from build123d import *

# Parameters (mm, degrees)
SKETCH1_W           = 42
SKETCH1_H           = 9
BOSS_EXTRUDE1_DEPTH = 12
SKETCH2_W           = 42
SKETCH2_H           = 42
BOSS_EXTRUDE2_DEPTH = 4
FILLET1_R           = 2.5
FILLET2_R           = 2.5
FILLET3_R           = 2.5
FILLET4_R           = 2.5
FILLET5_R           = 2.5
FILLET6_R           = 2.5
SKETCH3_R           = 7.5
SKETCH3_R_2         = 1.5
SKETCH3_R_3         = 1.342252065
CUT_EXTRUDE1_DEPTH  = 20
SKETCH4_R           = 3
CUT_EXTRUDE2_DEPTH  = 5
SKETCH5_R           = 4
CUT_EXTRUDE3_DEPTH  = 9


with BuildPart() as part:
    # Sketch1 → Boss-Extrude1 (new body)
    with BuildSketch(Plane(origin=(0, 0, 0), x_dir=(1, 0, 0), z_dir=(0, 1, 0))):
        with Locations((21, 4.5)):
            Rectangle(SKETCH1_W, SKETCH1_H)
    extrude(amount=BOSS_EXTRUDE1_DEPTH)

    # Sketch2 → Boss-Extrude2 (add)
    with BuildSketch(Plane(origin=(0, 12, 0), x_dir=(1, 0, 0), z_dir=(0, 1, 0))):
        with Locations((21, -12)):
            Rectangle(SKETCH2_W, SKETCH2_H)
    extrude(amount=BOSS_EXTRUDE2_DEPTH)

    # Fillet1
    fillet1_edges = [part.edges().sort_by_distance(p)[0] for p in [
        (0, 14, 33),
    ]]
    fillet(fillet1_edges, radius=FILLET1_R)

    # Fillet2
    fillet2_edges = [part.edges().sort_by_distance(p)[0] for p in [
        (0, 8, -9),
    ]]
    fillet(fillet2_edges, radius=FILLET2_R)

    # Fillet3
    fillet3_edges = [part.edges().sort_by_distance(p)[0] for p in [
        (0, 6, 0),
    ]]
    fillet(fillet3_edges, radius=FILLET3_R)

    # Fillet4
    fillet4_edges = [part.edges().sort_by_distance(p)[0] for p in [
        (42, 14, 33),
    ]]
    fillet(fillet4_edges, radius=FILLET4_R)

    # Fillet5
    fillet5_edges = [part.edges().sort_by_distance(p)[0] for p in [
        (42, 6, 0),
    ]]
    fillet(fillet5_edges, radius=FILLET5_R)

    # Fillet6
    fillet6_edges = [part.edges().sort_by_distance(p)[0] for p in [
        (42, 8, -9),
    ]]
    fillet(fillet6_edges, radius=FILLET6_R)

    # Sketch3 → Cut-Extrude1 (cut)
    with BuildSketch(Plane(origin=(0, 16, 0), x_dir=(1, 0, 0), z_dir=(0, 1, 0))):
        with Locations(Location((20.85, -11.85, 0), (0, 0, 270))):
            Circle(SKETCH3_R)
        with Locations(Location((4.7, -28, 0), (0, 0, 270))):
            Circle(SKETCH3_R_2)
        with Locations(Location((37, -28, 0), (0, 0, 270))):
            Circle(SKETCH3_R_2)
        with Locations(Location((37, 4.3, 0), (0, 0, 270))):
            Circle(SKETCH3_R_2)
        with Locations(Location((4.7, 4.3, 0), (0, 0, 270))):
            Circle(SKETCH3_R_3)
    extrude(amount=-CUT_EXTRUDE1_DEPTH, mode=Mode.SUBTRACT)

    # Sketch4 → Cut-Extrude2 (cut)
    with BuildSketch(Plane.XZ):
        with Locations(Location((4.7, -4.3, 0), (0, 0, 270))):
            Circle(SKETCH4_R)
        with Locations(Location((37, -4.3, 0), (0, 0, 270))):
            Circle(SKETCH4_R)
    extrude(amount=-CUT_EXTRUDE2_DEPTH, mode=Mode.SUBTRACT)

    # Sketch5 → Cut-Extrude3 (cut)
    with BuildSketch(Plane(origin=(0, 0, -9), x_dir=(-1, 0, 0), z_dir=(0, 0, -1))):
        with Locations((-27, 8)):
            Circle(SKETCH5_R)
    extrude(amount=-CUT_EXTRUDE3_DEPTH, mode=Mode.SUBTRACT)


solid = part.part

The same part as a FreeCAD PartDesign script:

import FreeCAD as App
import Part
import Sketcher

V = App.Vector


def edges_at(feature, points):
    """Names of the edges that pass closest to the given points."""
    edges = feature.Shape.Edges
    near = lambda p: min(range(len(edges)), key=lambda i: edges[i].distToShape(Part.Vertex(*p))[0])
    return sorted({f"Edge{near(p) + 1}" for p in points})


def add_polygon(sketch, points):
    """Adds a closed chain of lines whose ends are joined by coincident constraints."""
    first, n = sketch.GeometryCount, len(points)
    for a, b in zip(points, points[1:] + points[:1]):
        sketch.addGeometry(Part.LineSegment(App.Vector(*a, 0), App.Vector(*b, 0)), False)
    for i in range(n):
        sketch.addConstraint(Sketcher.Constraint("Coincident", first + i, 2, first + (i + 1) % n, 1))

doc = App.newDocument("Part")
body = doc.addObject("PartDesign::Body", "Body")

# Sketch on XZ plane
sketch1 = doc.addObject("Sketcher::SketchObject", "Sketch")
body.addObject(sketch1)
sketch1.AttachmentSupport = (doc.XZ_Plane, [""])
sketch1.MapMode = "FlatFace"
add_polygon(sketch1, [(0, -9), (0, 0), (42, 0), (42, -9)])  # lines 0-3
sketch1.addConstraint([
    Sketcher.Constraint("Vertical", 0),
    Sketcher.Constraint("Horizontal", 1),
    Sketcher.Constraint("Vertical", 2),
    Sketcher.Constraint("Horizontal", 3),
    Sketcher.Constraint("Coincident", 0, 2, -1, 1),
    Sketcher.Constraint("DistanceX", 1, 1, 1, 2, 42.0),
    Sketcher.Constraint("DistanceY", 0, 1, 0, 2, 9.0),
])
pad1 = doc.addObject("PartDesign::Pad", "Pad")
body.addObject(pad1)
pad1.Profile = sketch1
pad1.Length = 12
pad1.Reversed = True

# Sketch on XZ plane
sketch2 = doc.addObject("Sketcher::SketchObject", "Sketch001")
body.addObject(sketch2)
sketch2.AttachmentSupport = (doc.XZ_Plane, [""])
sketch2.MapMode = "FlatFace"
sketch2.AttachmentOffset = App.Placement(V(0, 0, -12), App.Rotation())
add_polygon(sketch2, [(0, -9), (0, 33), (42, 33), (42, -9)])  # lines 0-3
sketch2.addConstraint([
    Sketcher.Constraint("Vertical", 0),
    Sketcher.Constraint("Horizontal", 1),
    Sketcher.Constraint("Vertical", 2),
    Sketcher.Constraint("Horizontal", 3),
    Sketcher.Constraint("PointOnObject", 0, 2, -2),
    Sketcher.Constraint("Equal", 3, 0),
    Sketcher.Constraint("DistanceX", 1, 1, 1, 2, 42.0),
    Sketcher.Constraint("DistanceY", -1, 1, 0, 2, 33.0),
])
pad2 = doc.addObject("PartDesign::Pad", "Pad001")
body.addObject(pad2)
pad2.Profile = sketch2
pad2.Length = 4
pad2.Reversed = True
doc.recompute()

fillet = doc.addObject("PartDesign::Fillet", "Fillet")
body.addObject(fillet)
fillet.Base = (pad2, edges_at(pad2, [(0, 14, 33)]))
fillet.Radius = 2.5
doc.recompute()

fillet2 = doc.addObject("PartDesign::Fillet", "Fillet001")
body.addObject(fillet2)
fillet2.Base = (fillet, edges_at(fillet, [(0, 8, -9)]))
fillet2.Radius = 2.5
doc.recompute()

fillet3 = doc.addObject("PartDesign::Fillet", "Fillet002")
body.addObject(fillet3)
fillet3.Base = (fillet2, edges_at(fillet2, [(0, 6, 0)]))
fillet3.Radius = 2.5
doc.recompute()

fillet4 = doc.addObject("PartDesign::Fillet", "Fillet003")
body.addObject(fillet4)
fillet4.Base = (fillet3, edges_at(fillet3, [(42, 14, 33)]))
fillet4.Radius = 2.5
doc.recompute()

fillet5 = doc.addObject("PartDesign::Fillet", "Fillet004")
body.addObject(fillet5)
fillet5.Base = (fillet4, edges_at(fillet4, [(42, 6, 0)]))
fillet5.Radius = 2.5
doc.recompute()

fillet6 = doc.addObject("PartDesign::Fillet", "Fillet005")
body.addObject(fillet6)
fillet6.Base = (fillet5, edges_at(fillet5, [(42, 8, -9)]))
fillet6.Radius = 2.5

# Sketch on XZ plane
sketch3 = doc.addObject("Sketcher::SketchObject", "Sketch002")
body.addObject(sketch3)
sketch3.AttachmentSupport = (doc.XZ_Plane, [""])
sketch3.MapMode = "FlatFace"
sketch3.AttachmentOffset = App.Placement(V(0, 0, -16), App.Rotation())
sketch3.addGeometry([
    Part.Circle(V(20.9, 11.8, 0), V(0, 0, 1), 7.5),  # 0
    Part.Circle(V(4.7, 28, 0), V(0, 0, 1), 1.5),  # 1
    Part.Circle(V(37, 28, 0), V(0, 0, 1), 1.5),  # 2
    Part.Circle(V(37, -4.3, 0), V(0, 0, 1), 1.5),  # 3
    Part.Circle(V(4.7, -4.3, 0), V(0, 0, 1), 1.3),  # 4
], False)
sketch3.addConstraint([
    Sketcher.Constraint("Equal", 1, 2),
    Sketcher.Constraint("Equal", 2, 3),
    Sketcher.Constraint("Horizontal", 1, 3, 2, 3),
    Sketcher.Constraint("Horizontal", 3, 3, 4, 3),
    Sketcher.Constraint("Vertical", 2, 3, 3, 3),
    Sketcher.Constraint("Vertical", 1, 3, 4, 3),
    Sketcher.Constraint("Diameter", 0, 15.0),
    Sketcher.Constraint("Diameter", 1, 3.0),
    Sketcher.Constraint("DistanceY", -1, 1, 1, 3, 28.0),
    Sketcher.Constraint("DistanceX", -1, 1, 2, 3, 37.0),
    Sketcher.Constraint("DistanceX", -1, 1, 1, 3, 4.7),
    Sketcher.Constraint("DistanceY", 3, 3, -1, 1, 4.3),
    Sketcher.Constraint("DistanceX", -1, 1, 0, 3, 20.85),
    Sketcher.Constraint("DistanceY", -1, 1, 0, 3, 11.85),
    Sketcher.Constraint("Diameter", 4, 2.684504),
])
pocket1 = doc.addObject("PartDesign::Pocket", "Pocket")
body.addObject(pocket1)
pocket1.Profile = sketch3
pocket1.Length = 20
pocket1.Reversed = True

# Sketch on XZ plane
sketch4 = doc.addObject("Sketcher::SketchObject", "Sketch003")
body.addObject(sketch4)
sketch4.AttachmentSupport = (doc.XZ_Plane, [""])
sketch4.MapMode = "FlatFace"
sketch4.addGeometry([
    Part.Circle(V(4.7, -4.3, 0), V(0, 0, 1), 3),
    Part.Circle(V(37, -4.3, 0), V(0, 0, 1), 3),
], False)
sketch4.addConstraint([
    Sketcher.Constraint("Equal", 0, 1),
    Sketcher.Constraint("Horizontal", 0, 3, 1, 3),
    Sketcher.Constraint("Diameter", 0, 6.0),
    Sketcher.Constraint("DistanceX", -1, 1, 1, 3, 37.0),
    Sketcher.Constraint("DistanceX", -1, 1, 0, 3, 4.7),
    Sketcher.Constraint("DistanceY", 0, 3, -1, 1, 4.3),
])
pocket2 = doc.addObject("PartDesign::Pocket", "Pocket001")
body.addObject(pocket2)
pocket2.Profile = sketch4
pocket2.Length = 5

# Sketch on XY plane
sketch5 = doc.addObject("Sketcher::SketchObject", "Sketch004")
body.addObject(sketch5)
sketch5.AttachmentSupport = (doc.XY_Plane, [""])
sketch5.MapMode = "FlatFace"
sketch5.AttachmentOffset = App.Placement(V(0, 0, -9), App.Rotation())
sketch5.addGeometry(Part.Circle(V(27, 8, 0), V(0, 0, 1), 4), False)
sketch5.addConstraint([
    Sketcher.Constraint("Diameter", 0, 8.0),
    Sketcher.Constraint("DistanceX", -1, 1, 0, 3, 27.0),
    Sketcher.Constraint("DistanceY", -1, 1, 0, 3, 8.0),
])
pocket3 = doc.addObject("PartDesign::Pocket", "Pocket002")
body.addObject(pocket3)
pocket3.Profile = sketch5
pocket3.Length = 9
pocket3.Reversed = True

doc.recompute()
